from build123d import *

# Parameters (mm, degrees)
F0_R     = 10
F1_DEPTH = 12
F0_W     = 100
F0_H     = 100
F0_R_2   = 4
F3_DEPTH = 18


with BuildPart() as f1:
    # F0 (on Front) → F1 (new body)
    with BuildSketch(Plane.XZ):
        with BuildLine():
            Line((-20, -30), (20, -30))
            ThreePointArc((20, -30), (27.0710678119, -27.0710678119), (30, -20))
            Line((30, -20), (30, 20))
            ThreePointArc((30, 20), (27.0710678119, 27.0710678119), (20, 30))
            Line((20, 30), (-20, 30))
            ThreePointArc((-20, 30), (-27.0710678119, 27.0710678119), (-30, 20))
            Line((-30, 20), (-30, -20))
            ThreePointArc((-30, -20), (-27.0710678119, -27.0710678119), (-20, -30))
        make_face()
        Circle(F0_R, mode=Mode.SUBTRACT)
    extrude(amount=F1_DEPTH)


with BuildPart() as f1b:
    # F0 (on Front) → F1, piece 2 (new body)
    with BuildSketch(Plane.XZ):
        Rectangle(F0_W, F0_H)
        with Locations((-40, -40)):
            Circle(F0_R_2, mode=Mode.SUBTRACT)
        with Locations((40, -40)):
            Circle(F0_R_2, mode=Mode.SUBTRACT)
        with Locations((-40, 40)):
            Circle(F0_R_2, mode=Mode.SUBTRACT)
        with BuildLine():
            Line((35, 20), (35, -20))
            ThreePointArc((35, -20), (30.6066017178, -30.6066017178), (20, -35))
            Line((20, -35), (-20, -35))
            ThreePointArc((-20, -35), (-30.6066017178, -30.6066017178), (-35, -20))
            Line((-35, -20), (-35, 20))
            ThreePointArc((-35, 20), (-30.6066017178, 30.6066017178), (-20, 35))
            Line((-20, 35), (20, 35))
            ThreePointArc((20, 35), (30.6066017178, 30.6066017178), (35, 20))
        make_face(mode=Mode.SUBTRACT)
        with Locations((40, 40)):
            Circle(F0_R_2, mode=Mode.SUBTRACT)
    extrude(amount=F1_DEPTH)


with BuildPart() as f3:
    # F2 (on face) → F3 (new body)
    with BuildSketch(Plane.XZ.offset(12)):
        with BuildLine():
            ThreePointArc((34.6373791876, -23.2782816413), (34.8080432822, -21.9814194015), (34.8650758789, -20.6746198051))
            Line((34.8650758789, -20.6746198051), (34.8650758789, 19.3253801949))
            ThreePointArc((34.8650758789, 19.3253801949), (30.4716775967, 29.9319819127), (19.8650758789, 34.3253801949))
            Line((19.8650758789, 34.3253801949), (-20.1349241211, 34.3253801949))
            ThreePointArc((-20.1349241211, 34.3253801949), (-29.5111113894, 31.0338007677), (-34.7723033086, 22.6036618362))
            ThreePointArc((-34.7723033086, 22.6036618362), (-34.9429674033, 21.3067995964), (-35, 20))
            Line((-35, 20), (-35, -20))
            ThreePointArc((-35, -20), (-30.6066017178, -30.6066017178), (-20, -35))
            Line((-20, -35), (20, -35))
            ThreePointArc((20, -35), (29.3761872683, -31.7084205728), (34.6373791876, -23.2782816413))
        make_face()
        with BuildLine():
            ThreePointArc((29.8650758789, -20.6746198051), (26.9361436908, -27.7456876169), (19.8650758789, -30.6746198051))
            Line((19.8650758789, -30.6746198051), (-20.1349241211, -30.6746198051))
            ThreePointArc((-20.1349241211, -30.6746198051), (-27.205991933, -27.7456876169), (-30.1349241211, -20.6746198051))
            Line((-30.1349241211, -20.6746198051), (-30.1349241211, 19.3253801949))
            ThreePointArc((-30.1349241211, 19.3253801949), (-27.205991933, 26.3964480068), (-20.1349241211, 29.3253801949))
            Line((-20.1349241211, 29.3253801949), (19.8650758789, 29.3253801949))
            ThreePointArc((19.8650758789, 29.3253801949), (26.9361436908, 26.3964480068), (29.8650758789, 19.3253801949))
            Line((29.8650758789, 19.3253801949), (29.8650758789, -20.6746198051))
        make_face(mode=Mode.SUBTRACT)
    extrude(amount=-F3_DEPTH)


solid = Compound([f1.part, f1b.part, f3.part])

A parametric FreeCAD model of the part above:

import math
import FreeCAD as App
import Part
import Sketcher
from FreeCAD import Vector


def add_polygon(sketch, points):
    """Adds a closed chain of lines whose ends are joined by coincident constraints."""
    first, n = sketch.GeometryCount, len(points)
    for a, b in zip(points, points[1:] + points[:1]):
        sketch.addGeometry(Part.LineSegment(App.Vector(*a, 0), App.Vector(*b, 0)), False)
    for i in range(n):
        sketch.addConstraint(Sketcher.Constraint("Coincident", first + i, 2, first + (i + 1) % n, 1))

doc = App.newDocument("Part")
params = doc.addObject("Spreadsheet::Sheet", "Params")
for row, (alias, value) in enumerate([
    ("sketch1_diameter", "20 mm"),
    ("sketch1_width", "40 mm"),
    ("pad1_length", "12 mm"),
    ("sketch2_diameter", "8 mm"),
    ("sketch2_radius", "15 mm"),
    ("sketch2_width", "100 mm"),
    ("sketch2_width2", "40 mm"),
    ("pad2_length", "12 mm"),
    ("sketch3_radius", "15 mm"),
    ("sketch3_radius2", "10 mm"),
    ("sketch3_width", "40 mm"),
    ("pad3_length", "18 mm"),
], start=1):
    params.set(f"A{row}", alias)
    params.set(f"B{row}", "=" + value)
    params.setAlias(f"B{row}", alias)

body = doc.addObject("PartDesign::Body", "Body")

sketch1 = doc.addObject("Sketcher::SketchObject", "Sketch")
body.addObject(sketch1)
sketch1.AttachmentSupport = (doc.XZ_Plane, [""])
sketch1.MapMode = "FlatFace"
sketch1.addGeometry(Part.LineSegment(Vector(-20, -30, 0), Vector(20, -30, 0)), False)
sketch1.addGeometry(Part.ArcOfCircle(Part.Circle(Vector(20, -20, 0), Vector(0, 0, 1), 10), math.radians(-90), math.radians(0)), False)
sketch1.addGeometry(Part.LineSegment(Vector(30, -20, 0), Vector(30, 20, 0)), False)
sketch1.addGeometry(Part.ArcOfCircle(Part.Circle(Vector(20, 20, 0), Vector(0, 0, 1), 10), math.radians(0), math.radians(90)), False)
sketch1.addGeometry(Part.LineSegment(Vector(20, 30, 0), Vector(-20, 30, 0)), False)
sketch1.addGeometry(Part.ArcOfCircle(Part.Circle(Vector(-20, 20, 0), Vector(0, 0, 1), 10), math.radians(90), math.radians(180)), False)
sketch1.addGeometry(Part.LineSegment(Vector(-30, 20, 0), Vector(-30, -20, 0)), False)
sketch1.addGeometry(Part.ArcOfCircle(Part.Circle(Vector(-20, -20, 0), Vector(0, 0, 1), 10), math.radians(180), math.radians(270)), False)
sketch1.addGeometry(Part.Circle(Vector(0, 0, 0), Vector(0, 0, 1), 10), False)
sketch1.addConstraint(Sketcher.Constraint("Tangent", 0, 2, 1, 1))
sketch1.addConstraint(Sketcher.Constraint("Tangent", 1, 2, 2, 1))
sketch1.addConstraint(Sketcher.Constraint("Tangent", 2, 2, 3, 1))
sketch1.addConstraint(Sketcher.Constraint("Tangent", 3, 2, 4, 1))
sketch1.addConstraint(Sketcher.Constraint("Tangent", 4, 2, 5, 1))
sketch1.addConstraint(Sketcher.Constraint("Tangent", 5, 2, 6, 1))
sketch1.addConstraint(Sketcher.Constraint("Tangent", 6, 2, 7, 1))
sketch1.addConstraint(Sketcher.Constraint("Tangent", 7, 2, 0, 1))
sketch1.addConstraint(Sketcher.Constraint("Horizontal", 0))
sketch1.addConstraint(Sketcher.Constraint("Vertical", 2))
sketch1.addConstraint(Sketcher.Constraint("Horizontal", 4))
sketch1.addConstraint(Sketcher.Constraint("Vertical", 6))
sketch1.addConstraint(Sketcher.Constraint("Coincident", 8, 3, -1, 1))
sketch1.addConstraint(Sketcher.Constraint("Equal", 1, 3))
sketch1.addConstraint(Sketcher.Constraint("Equal", 3, 5))
sketch1.addConstraint(Sketcher.Constraint("Equal", 5, 7))
sketch1.addConstraint(Sketcher.Constraint("Equal", 7, 8))
sketch1.addConstraint(Sketcher.Constraint("Symmetric", 1, 3, 5, 3, -1, 1))
sketch1.addConstraint(Sketcher.Constraint("Equal", 4, 2))
sketch1.addConstraint(Sketcher.Constraint("Diameter", 8, 20.0))
sketch1.addConstraint(Sketcher.Constraint("DistanceX", 0, 1, 0, 2, 40.0))
sketch1.setExpression("Constraints[19]", "Params.sketch1_diameter")
sketch1.setExpression("Constraints[20]", "Params.sketch1_width")
pad1 = doc.addObject("PartDesign::Pad", "Pad")
body.addObject(pad1)
pad1.Profile = sketch1
pad1.setExpression("Length", "Params.pad1_length")
body2 = doc.addObject("PartDesign::Body", "Body001")

sketch2 = doc.addObject("Sketcher::SketchObject", "Sketch001")
body2.addObject(sketch2)
sketch2.AttachmentSupport = (doc.getObject("XZ_Plane001"), [""])
sketch2.MapMode = "FlatFace"
add_polygon(sketch2, [(-50, 50), (-50, -50), (50, -50), (50, 50)])
sketch2.addGeometry(Part.Circle(Vector(-40, -40, 0), Vector(0, 0, 1), 4), False)
sketch2.addGeometry(Part.Circle(Vector(40, -40, 0), Vector(0, 0, 1), 4), False)
sketch2.addGeometry(Part.Circle(Vector(-40, 40, 0), Vector(0, 0, 1), 4), False)
sketch2.addGeometry(Part.ArcOfCircle(Part.Circle(Vector(20, 20, 0), Vector(0, 0, 1), 15), math.radians(0), math.radians(90)), False)
sketch2.addGeometry(Part.LineSegment(Vector(35, 20, 0), Vector(35, -20, 0)), False)
sketch2.addGeometry(Part.ArcOfCircle(Part.Circle(Vector(20, -20, 0), Vector(0, 0, 1), 15), math.radians(-90), math.radians(0)), False)
sketch2.addGeometry(Part.LineSegment(Vector(20, -35, 0), Vector(-20, -35, 0)), False)
sketch2.addGeometry(Part.ArcOfCircle(Part.Circle(Vector(-20, -20, 0), Vector(0, 0, 1), 15), math.radians(180), math.radians(270)), False)
sketch2.addGeometry(Part.LineSegment(Vector(-35, -20, 0), Vector(-35, 20, 0)), False)
sketch2.addGeometry(Part.ArcOfCircle(Part.Circle(Vector(-20, 20, 0), Vector(0, 0, 1), 15), math.radians(90), math.radians(180)), False)
sketch2.addGeometry(Part.LineSegment(Vector(-20, 35, 0), Vector(20, 35, 0)), False)
sketch2.addGeometry(Part.Circle(Vector(40, 40, 0), Vector(0, 0, 1), 4), False)
sketch2.addConstraint(Sketcher.Constraint("Tangent", 7, 1, 8, 1))
sketch2.addConstraint(Sketcher.Constraint("Tangent", 8, 2, 9, 2))
sketch2.addConstraint(Sketcher.Constraint("Tangent", 9, 1, 10, 1))
sketch2.addConstraint(Sketcher.Constraint("Tangent", 10, 2, 11, 2))
sketch2.addConstraint(Sketcher.Constraint("Tangent", 11, 1, 12, 1))
sketch2.addConstraint(Sketcher.Constraint("Tangent", 12, 2, 13, 2))
sketch2.addConstraint(Sketcher.Constraint("Tangent", 13, 1, 14, 1))
sketch2.addConstraint(Sketcher.Constraint("Tangent", 14, 2, 7, 2))
sketch2.addConstraint(Sketcher.Constraint("Vertical", 0))
sketch2.addConstraint(Sketcher.Constraint("Horizontal", 1))
sketch2.addConstraint(Sketcher.Constraint("Vertical", 2))
sketch2.addConstraint(Sketcher.Constraint("Horizontal", 3))
sketch2.addConstraint(Sketcher.Constraint("Vertical", 8))
sketch2.addConstraint(Sketcher.Constraint("Horizontal", 10))
sketch2.addConstraint(Sketcher.Constraint("Vertical", 12))
sketch2.addConstraint(Sketcher.Constraint("Horizontal", 14))
sketch2.addConstraint(Sketcher.Constraint("Equal", 4, 5))
sketch2.addConstraint(Sketcher.Constraint("Equal", 5, 6))
sketch2.addConstraint(Sketcher.Constraint("Equal", 7, 9))
sketch2.addConstraint(Sketcher.Constraint("Equal", 9, 11))
sketch2.addConstraint(Sketcher.Constraint("Equal", 11, 13))
sketch2.addConstraint(Sketcher.Constraint("Equal", 6, 15))
sketch2.addConstraint(Sketcher.Constraint("Symmetric", 5, 3, 6, 3, -1, 1))
sketch2.addConstraint(Sketcher.Constraint("Symmetric", 7, 3, 11, 3, -1, 1))
sketch2.addConstraint(Sketcher.Constraint("Symmetric", 4, 3, 15, 3, -1, 1))
sketch2.addConstraint(Sketcher.Constraint("Symmetric", 0, 2, 2, 2, -1, 1))
sketch2.addConstraint(Sketcher.Constraint("Symmetric", 4, 3, 5, 3, -2))
sketch2.addConstraint(Sketcher.Constraint("Equal", 3, 0))
sketch2.addConstraint(Sketcher.Constraint("Equal", 14, 8))
sketch2.addConstraint(Sketcher.Constraint("Diameter", 4, 8.0))
sketch2.addConstraint(Sketcher.Constraint("Radius", 7, 15.0))
sketch2.addConstraint(Sketcher.Constraint("DistanceX", 1, 1, 1, 2, 100.0))
sketch2.addConstraint(Sketcher.Constraint("DistanceX", 10, 2, 10, 1, 40.0))
sketch2.addConstraint(Sketcher.Constraint("DistanceX", 4, 3, -1, 1, 40.0))
sketch2.addConstraint(Sketcher.Constraint("DistanceY", 4, 3, -1, 1, 40.0))
sketch2.setExpression("Constraints[33]", "Params.sketch2_diameter")
sketch2.setExpression("Constraints[34]", "Params.sketch2_radius")
sketch2.setExpression("Constraints[35]", "Params.sketch2_width")
sketch2.setExpression("Constraints[36]", "Params.sketch2_width2")
pad2 = doc.addObject("PartDesign::Pad", "Pad001")
body2.addObject(pad2)
pad2.Profile = sketch2
pad2.setExpression("Length", "Params.pad2_length")
body3 = doc.addObject("PartDesign::Body", "Body002")

sketch3 = doc.addObject("Sketcher::SketchObject", "Sketch002")
body3.addObject(sketch3)
sketch3.AttachmentSupport = (doc.getObject("XZ_Plane002"), [""])
sketch3.MapMode = "FlatFace"
sketch3.AttachmentOffset = App.Placement(Vector(0, 0, 12), App.Rotation())
sketch3.addGeometry(Part.ArcOfCircle(Part.Circle(Vector(19.9, -20.7, 0), Vector(0, 0, 1), 15), math.radians(-10), math.radians(0)), False)
sketch3.addGeometry(Part.LineSegment(Vector(34.9, -20.7, 0), Vector(34.9, 19.3, 0)), False)
sketch3.addGeometry(Part.ArcOfCircle(Part.Circle(Vector(19.9, 19.3, 0), Vector(0, 0, 1), 15), math.radians(0), math.radians(90)), False)
sketch3.addGeometry(Part.LineSegment(Vector(19.9, 34.3, 0), Vector(-20.1, 34.3, 0)), False)
sketch3.addGeometry(Part.ArcOfCircle(Part.Circle(Vector(-20.1, 19.3, 0), Vector(0, 0, 1), 15), math.radians(90), math.radians(167)), False)
sketch3.addGeometry(Part.ArcOfCircle(Part.Circle(Vector(-20, 20, 0), Vector(0, 0, 1), 15), math.radians(170), math.radians(180)), False)
sketch3.addGeometry(Part.LineSegment(Vector(-35, 20, 0), Vector(-35, -20, 0)), False)
sketch3.addGeometry(Part.ArcOfCircle(Part.Circle(Vector(-20, -20, 0), Vector(0, 0, 1), 15), math.radians(180), math.radians(270)), False)
sketch3.addGeometry(Part.LineSegment(Vector(-20, -35, 0), Vector(20, -35, 0)), False)
sketch3.addGeometry(Part.ArcOfCircle(Part.Circle(Vector(20, -20, 0), Vector(0, 0, 1), 15), math.radians(-90), math.radians(-13)), False)
sketch3.addGeometry(Part.LineSegment(Vector(29.9, 19.3, 0), Vector(29.9, -20.7, 0)), False)
sketch3.addGeometry(Part.ArcOfCircle(Part.Circle(Vector(19.9, -20.7, 0), Vector(0, 0, 1), 10), math.radians(-90), math.radians(0)), False)
sketch3.addGeometry(Part.LineSegment(Vector(19.9, -30.7, 0), Vector(-20.1, -30.7, 0)), False)
sketch3.addGeometry(Part.ArcOfCircle(Part.Circle(Vector(-20.1, -20.7, 0), Vector(0, 0, 1), 10), math.radians(180), math.radians(270)), False)
sketch3.addGeometry(Part.LineSegment(Vector(-30.1, -20.7, 0), Vector(-30.1, 19.3, 0)), False)
sketch3.addGeometry(Part.ArcOfCircle(Part.Circle(Vector(-20.1, 19.3, 0), Vector(0, 0, 1), 10), math.radians(90), math.radians(180)), False)
sketch3.addGeometry(Part.LineSegment(Vector(-20.1, 29.3, 0), Vector(19.9, 29.3, 0)), False)
sketch3.addGeometry(Part.ArcOfCircle(Part.Circle(Vector(19.9, 19.3, 0), Vector(0, 0, 1), 10), math.radians(0), math.radians(90)), False)
sketch3.addConstraint(Sketcher.Constraint("Tangent", 0, 2, 1, 1))
sketch3.addConstraint(Sketcher.Constraint("Tangent", 1, 2, 2, 1))
sketch3.addConstraint(Sketcher.Constraint("Tangent", 2, 2, 3, 1))
sketch3.addConstraint(Sketcher.Constraint("Tangent", 3, 2, 4, 1))
sketch3.addConstraint(Sketcher.Constraint("Coincident", 4, 2, 5, 1))
sketch3.addConstraint(Sketcher.Constraint("Tangent", 5, 2, 6, 1))
sketch3.addConstraint(Sketcher.Constraint("Tangent", 6, 2, 7, 1))
sketch3.addConstraint(Sketcher.Constraint("Tangent", 7, 2, 8, 1))
sketch3.addConstraint(Sketcher.Constraint("Tangent", 8, 2, 9, 1))
sketch3.addConstraint(Sketcher.Constraint("Coincident", 9, 2, 0, 1))
sketch3.addConstraint(Sketcher.Constraint("Tangent", 10, 2, 11, 2))
sketch3.addConstraint(Sketcher.Constraint("Tangent", 11, 1, 12, 1))
sketch3.addConstraint(Sketcher.Constraint("Tangent", 12, 2, 13, 2))
sketch3.addConstraint(Sketcher.Constraint("Tangent", 13, 1, 14, 1))
sketch3.addConstraint(Sketcher.Constraint("Tangent", 14, 2, 15, 2))
sketch3.addConstraint(Sketcher.Constraint("Tangent", 15, 1, 16, 1))
sketch3.addConstraint(Sketcher.Constraint("Tangent", 16, 2, 17, 2))
sketch3.addConstraint(Sketcher.Constraint("Tangent", 17, 1, 10, 1))
sketch3.addConstraint(Sketcher.Constraint("Vertical", 1))
sketch3.addConstraint(Sketcher.Constraint("Horizontal", 3))
sketch3.addConstraint(Sketcher.Constraint("Vertical", 6))
sketch3.addConstraint(Sketcher.Constraint("Horizontal", 8))
sketch3.addConstraint(Sketcher.Constraint("Vertical", 10))
sketch3.addConstraint(Sketcher.Constraint("Horizontal", 12))
sketch3.addConstraint(Sketcher.Constraint("Vertical", 14))
sketch3.addConstraint(Sketcher.Constraint("Horizontal", 16))
sketch3.addConstraint(Sketcher.Constraint("Coincident", 11, 3, 0, 3))
sketch3.addConstraint(Sketcher.Constraint("Coincident", 15, 3, 4, 3))
sketch3.addConstraint(Sketcher.Constraint("Coincident", 17, 3, 2, 3))
sketch3.addConstraint(Sketcher.Constraint("Equal", 0, 2))
sketch3.addConstraint(Sketcher.Constraint("Equal", 2, 4))
sketch3.addConstraint(Sketcher.Constraint("Equal", 4, 5))
sketch3.addConstraint(Sketcher.Constraint("Equal", 5, 7))
sketch3.addConstraint(Sketcher.Constraint("Equal", 7, 9))
sketch3.addConstraint(Sketcher.Constraint("Equal", 11, 13))
sketch3.addConstraint(Sketcher.Constraint("Symmetric", 5, 3, 9, 3, -1, 1))
sketch3.addConstraint(Sketcher.Constraint("Equal", 3, 8))
sketch3.addConstraint(Sketcher.Constraint("Equal", 16, 1))
sketch3.addConstraint(Sketcher.Constraint("Equal", 1, 6))
sketch3.addConstraint(Sketcher.Constraint("Radius", 0, 15.0))
sketch3.addConstraint(Sketcher.Constraint("Radius", 11, 10.0))
sketch3.addConstraint(Sketcher.Constraint("DistanceX", 3, 2, 3, 1, 40.0))
sketch3.addConstraint(Sketcher.Constraint("DistanceY", 0, 3, -1, 1, 20.67462))
sketch3.addConstraint(Sketcher.Constraint("DistanceY", -1, 1, 4, 2, 22.603662))
sketch3.setExpression("Constraints[39]", "Params.sketch3_radius")
sketch3.setExpression("Constraints[40]", "Params.sketch3_radius2")
sketch3.setExpression("Constraints[41]", "Params.sketch3_width")
pad3 = doc.addObject("PartDesign::Pad", "Pad002")
body3.addObject(pad3)
pad3.Profile = sketch3
pad3.setExpression("Length", "Params.pad3_length")
pad3.Reversed = True

doc.recompute()
